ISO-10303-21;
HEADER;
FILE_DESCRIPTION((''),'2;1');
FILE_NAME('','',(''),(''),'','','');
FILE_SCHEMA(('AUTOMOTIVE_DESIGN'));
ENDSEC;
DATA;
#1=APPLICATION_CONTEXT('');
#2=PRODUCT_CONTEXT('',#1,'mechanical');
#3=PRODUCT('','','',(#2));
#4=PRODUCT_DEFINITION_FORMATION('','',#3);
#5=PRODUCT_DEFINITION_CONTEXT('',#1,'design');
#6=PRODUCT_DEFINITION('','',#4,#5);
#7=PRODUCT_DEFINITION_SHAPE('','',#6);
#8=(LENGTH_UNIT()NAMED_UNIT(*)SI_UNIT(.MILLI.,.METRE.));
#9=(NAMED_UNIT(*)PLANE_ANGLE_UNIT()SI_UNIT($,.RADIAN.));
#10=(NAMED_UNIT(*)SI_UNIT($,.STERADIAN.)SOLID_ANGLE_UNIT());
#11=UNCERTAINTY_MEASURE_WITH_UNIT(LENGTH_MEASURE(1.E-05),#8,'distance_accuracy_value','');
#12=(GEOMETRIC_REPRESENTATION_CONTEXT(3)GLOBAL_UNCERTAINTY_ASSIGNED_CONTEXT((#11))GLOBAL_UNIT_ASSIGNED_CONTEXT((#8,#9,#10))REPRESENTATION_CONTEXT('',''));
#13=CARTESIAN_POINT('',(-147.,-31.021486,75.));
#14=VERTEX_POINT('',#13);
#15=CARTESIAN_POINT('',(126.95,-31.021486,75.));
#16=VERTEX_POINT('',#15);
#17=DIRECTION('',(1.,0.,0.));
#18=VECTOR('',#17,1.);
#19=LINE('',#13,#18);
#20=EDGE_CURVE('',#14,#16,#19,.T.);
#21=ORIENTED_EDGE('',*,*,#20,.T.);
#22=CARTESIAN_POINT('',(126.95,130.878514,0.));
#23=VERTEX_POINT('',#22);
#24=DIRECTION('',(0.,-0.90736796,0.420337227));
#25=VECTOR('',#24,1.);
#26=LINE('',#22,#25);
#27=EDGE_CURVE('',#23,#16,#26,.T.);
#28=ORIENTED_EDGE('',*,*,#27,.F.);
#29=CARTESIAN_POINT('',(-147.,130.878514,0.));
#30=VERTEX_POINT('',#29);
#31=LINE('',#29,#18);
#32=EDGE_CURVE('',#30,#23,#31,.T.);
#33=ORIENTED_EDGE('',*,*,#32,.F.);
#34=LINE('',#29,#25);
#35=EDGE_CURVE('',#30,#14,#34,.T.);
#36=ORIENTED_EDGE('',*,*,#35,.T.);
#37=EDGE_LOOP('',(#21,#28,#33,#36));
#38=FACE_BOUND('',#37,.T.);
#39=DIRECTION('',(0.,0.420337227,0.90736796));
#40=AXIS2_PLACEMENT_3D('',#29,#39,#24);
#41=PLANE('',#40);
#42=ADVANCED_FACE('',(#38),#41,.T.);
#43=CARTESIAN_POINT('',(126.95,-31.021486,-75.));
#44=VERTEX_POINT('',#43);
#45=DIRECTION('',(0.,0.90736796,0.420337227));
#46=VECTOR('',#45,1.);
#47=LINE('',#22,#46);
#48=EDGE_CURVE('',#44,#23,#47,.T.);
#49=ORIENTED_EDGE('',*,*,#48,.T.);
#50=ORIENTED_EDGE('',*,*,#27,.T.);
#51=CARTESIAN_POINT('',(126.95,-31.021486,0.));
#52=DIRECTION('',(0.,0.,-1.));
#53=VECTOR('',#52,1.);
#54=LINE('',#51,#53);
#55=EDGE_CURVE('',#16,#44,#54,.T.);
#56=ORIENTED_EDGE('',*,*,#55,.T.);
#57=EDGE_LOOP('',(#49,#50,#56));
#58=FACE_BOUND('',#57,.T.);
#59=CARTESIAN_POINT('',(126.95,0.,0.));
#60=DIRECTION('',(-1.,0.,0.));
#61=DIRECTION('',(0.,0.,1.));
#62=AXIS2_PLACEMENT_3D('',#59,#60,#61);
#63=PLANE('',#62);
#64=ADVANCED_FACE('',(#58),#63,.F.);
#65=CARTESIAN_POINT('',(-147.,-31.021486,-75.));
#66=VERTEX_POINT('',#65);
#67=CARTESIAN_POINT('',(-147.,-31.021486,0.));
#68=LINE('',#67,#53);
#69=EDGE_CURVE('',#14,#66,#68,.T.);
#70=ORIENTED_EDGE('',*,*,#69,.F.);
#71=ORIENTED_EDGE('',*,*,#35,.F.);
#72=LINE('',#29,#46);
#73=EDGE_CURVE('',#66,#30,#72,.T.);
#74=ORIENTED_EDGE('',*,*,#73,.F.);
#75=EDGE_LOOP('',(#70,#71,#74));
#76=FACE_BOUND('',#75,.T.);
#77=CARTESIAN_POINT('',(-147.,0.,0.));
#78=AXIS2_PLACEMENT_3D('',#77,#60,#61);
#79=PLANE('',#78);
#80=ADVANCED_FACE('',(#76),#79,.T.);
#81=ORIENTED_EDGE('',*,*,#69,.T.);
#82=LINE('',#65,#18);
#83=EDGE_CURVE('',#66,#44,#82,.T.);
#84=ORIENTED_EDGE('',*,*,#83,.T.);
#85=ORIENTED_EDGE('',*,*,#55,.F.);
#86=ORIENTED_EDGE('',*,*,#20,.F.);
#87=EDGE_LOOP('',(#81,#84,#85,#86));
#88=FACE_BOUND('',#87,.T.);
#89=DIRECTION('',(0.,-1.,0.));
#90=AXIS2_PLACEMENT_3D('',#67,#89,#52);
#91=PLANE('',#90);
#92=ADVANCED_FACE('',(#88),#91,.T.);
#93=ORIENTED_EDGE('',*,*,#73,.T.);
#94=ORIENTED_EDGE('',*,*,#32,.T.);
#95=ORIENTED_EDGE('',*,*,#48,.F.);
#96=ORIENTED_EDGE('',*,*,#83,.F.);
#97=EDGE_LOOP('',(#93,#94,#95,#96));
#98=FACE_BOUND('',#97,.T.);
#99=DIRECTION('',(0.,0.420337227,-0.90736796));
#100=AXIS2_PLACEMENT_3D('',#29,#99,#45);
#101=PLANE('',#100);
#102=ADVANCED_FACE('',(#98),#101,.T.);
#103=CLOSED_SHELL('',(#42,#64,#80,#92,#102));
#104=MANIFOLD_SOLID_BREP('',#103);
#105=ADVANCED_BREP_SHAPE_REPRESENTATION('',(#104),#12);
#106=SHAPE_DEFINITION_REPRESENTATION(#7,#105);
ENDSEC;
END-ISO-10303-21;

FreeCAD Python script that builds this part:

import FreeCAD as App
import Part
import Sketcher
Q = App.Units.Quantity


def add_polygon(sketch, points):
    """Adds a closed chain of lines whose ends are joined by coincident constraints."""
    first, n = sketch.GeometryCount, len(points)
    for a, b in zip(points, points[1:] + points[:1]):
        sketch.addGeometry(Part.LineSegment(App.Vector(*a, 0), App.Vector(*b, 0)), False)
    for i in range(n):
        sketch.addConstraint(Sketcher.Constraint("Coincident", first + i, 2, first + (i + 1) % n, 1))

doc = App.newDocument("Part")
body = doc.addObject("PartDesign::Body", "Body")

sketch1 = doc.addObject("Sketcher::SketchObject", "Sketch")
body.addObject(sketch1)
sketch1.AttachmentSupport = (doc.YZ_Plane, [""])
sketch1.MapMode = "FlatFace"
add_polygon(sketch1, [(-31.021486, 75), (-31.021486, -75), (130.878514, 0)])
sketch1.addConstraint(Sketcher.Constraint("Vertical", 0))
sketch1.addConstraint(Sketcher.Constraint("PointOnObject", 1, 2, -1))
sketch1.addConstraint(Sketcher.Constraint("Equal", 1, 2))
sketch1.addConstraint(Sketcher.Constraint("DistanceY", 0, 2, 0, 1, Q("150 mm")))
sketch1.addConstraint(Sketcher.Constraint("DistanceX", 0, 2, 1, 2, Q("161.9 mm")))
sketch1.addConstraint(Sketcher.Constraint("DistanceX", 0, 2, -1, 1, Q("31.021486 mm")))
pad1 = doc.addObject("PartDesign::Pad", "Pad")
body.addObject(pad1)
pad1.Profile = sketch1
pad1.Type = "TwoLengths"
pad1.Length = 126.95
pad1.Length2 = 147

doc.recompute()
